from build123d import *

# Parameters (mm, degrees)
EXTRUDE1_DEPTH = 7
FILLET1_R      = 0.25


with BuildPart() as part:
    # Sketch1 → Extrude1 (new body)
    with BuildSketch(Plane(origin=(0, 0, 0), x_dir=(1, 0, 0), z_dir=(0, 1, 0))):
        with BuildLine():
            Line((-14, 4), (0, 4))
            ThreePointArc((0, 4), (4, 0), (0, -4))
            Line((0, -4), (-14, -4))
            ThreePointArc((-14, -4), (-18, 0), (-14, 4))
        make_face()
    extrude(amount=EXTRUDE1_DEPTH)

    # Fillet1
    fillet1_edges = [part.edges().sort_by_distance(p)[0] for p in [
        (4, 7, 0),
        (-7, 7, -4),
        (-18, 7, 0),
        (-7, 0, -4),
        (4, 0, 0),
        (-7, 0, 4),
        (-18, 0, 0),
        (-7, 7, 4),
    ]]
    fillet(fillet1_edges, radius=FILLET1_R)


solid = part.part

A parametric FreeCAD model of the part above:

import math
import FreeCAD as App
import Part
import Sketcher

V = App.Vector
Q = App.Units.Quantity


def edges_at(feature, points):
    """Names of the edges that pass closest to the given points."""
    edges = feature.Shape.Edges
    near = lambda p: min(range(len(edges)), key=lambda i: edges[i].distToShape(Part.Vertex(*p))[0])
    return sorted({f"Edge{near(p) + 1}" for p in points})

doc = App.newDocument("Part")
body = doc.addObject("PartDesign::Body", "Body")

# Sketch on XZ plane
sketch1 = doc.addObject("Sketcher::SketchObject", "Sketch")
body.addObject(sketch1)
sketch1.AttachmentSupport = (doc.XZ_Plane, [""])
sketch1.MapMode = "FlatFace"
sketch1.addGeometry([
    Part.LineSegment(V(0, -4, 0), V(-14, -4, 0)),
    Part.ArcOfCircle(Part.Circle(V(-14, 0, 0), V(0, 0, 1), 4), math.radians(90), math.radians(270)),
    Part.LineSegment(V(-14, 4, 0), V(0, 4, 0)),
    Part.ArcOfCircle(Part.Circle(V(0, 0, 0), V(0, 0, 1), 4), math.radians(-90), math.radians(90)),
], False)
sketch1.addConstraint([
    Sketcher.Constraint("Tangent", 0, 2, 1, 2),
    Sketcher.Constraint("Tangent", 1, 1, 2, 1),
    Sketcher.Constraint("Tangent", 2, 2, 3, 2),
    Sketcher.Constraint("Tangent", 3, 1, 0, 1),
    Sketcher.Constraint("Horizontal", 0),
    Sketcher.Constraint("Horizontal", 2),
    Sketcher.Constraint("Coincident", 3, 3, -1, 1),
    Sketcher.Constraint("Radius", 1, Q("4 mm")),
    Sketcher.Constraint("DistanceX", 0, 2, 0, 1, Q("14 mm")),
])
pad1 = doc.addObject("PartDesign::Pad", "Pad")
body.addObject(pad1)
pad1.Profile = sketch1
pad1.Length = 7
pad1.Reversed = True
doc.recompute()

fillet = doc.addObject("PartDesign::Fillet", "Fillet")
body.addObject(fillet)
fillet.Base = (pad1, edges_at(pad1, [
    (4, 7, 0),
    (-7, 7, -4),
    (-18, 7, 0),
    (-7, 0, -4),
    (4, 0, 0),
    (-7, 0, 4),
    (-18, 0, 0),
    (-7, 7, 4),
]))
fillet.Radius = 0.25

doc.recompute()
